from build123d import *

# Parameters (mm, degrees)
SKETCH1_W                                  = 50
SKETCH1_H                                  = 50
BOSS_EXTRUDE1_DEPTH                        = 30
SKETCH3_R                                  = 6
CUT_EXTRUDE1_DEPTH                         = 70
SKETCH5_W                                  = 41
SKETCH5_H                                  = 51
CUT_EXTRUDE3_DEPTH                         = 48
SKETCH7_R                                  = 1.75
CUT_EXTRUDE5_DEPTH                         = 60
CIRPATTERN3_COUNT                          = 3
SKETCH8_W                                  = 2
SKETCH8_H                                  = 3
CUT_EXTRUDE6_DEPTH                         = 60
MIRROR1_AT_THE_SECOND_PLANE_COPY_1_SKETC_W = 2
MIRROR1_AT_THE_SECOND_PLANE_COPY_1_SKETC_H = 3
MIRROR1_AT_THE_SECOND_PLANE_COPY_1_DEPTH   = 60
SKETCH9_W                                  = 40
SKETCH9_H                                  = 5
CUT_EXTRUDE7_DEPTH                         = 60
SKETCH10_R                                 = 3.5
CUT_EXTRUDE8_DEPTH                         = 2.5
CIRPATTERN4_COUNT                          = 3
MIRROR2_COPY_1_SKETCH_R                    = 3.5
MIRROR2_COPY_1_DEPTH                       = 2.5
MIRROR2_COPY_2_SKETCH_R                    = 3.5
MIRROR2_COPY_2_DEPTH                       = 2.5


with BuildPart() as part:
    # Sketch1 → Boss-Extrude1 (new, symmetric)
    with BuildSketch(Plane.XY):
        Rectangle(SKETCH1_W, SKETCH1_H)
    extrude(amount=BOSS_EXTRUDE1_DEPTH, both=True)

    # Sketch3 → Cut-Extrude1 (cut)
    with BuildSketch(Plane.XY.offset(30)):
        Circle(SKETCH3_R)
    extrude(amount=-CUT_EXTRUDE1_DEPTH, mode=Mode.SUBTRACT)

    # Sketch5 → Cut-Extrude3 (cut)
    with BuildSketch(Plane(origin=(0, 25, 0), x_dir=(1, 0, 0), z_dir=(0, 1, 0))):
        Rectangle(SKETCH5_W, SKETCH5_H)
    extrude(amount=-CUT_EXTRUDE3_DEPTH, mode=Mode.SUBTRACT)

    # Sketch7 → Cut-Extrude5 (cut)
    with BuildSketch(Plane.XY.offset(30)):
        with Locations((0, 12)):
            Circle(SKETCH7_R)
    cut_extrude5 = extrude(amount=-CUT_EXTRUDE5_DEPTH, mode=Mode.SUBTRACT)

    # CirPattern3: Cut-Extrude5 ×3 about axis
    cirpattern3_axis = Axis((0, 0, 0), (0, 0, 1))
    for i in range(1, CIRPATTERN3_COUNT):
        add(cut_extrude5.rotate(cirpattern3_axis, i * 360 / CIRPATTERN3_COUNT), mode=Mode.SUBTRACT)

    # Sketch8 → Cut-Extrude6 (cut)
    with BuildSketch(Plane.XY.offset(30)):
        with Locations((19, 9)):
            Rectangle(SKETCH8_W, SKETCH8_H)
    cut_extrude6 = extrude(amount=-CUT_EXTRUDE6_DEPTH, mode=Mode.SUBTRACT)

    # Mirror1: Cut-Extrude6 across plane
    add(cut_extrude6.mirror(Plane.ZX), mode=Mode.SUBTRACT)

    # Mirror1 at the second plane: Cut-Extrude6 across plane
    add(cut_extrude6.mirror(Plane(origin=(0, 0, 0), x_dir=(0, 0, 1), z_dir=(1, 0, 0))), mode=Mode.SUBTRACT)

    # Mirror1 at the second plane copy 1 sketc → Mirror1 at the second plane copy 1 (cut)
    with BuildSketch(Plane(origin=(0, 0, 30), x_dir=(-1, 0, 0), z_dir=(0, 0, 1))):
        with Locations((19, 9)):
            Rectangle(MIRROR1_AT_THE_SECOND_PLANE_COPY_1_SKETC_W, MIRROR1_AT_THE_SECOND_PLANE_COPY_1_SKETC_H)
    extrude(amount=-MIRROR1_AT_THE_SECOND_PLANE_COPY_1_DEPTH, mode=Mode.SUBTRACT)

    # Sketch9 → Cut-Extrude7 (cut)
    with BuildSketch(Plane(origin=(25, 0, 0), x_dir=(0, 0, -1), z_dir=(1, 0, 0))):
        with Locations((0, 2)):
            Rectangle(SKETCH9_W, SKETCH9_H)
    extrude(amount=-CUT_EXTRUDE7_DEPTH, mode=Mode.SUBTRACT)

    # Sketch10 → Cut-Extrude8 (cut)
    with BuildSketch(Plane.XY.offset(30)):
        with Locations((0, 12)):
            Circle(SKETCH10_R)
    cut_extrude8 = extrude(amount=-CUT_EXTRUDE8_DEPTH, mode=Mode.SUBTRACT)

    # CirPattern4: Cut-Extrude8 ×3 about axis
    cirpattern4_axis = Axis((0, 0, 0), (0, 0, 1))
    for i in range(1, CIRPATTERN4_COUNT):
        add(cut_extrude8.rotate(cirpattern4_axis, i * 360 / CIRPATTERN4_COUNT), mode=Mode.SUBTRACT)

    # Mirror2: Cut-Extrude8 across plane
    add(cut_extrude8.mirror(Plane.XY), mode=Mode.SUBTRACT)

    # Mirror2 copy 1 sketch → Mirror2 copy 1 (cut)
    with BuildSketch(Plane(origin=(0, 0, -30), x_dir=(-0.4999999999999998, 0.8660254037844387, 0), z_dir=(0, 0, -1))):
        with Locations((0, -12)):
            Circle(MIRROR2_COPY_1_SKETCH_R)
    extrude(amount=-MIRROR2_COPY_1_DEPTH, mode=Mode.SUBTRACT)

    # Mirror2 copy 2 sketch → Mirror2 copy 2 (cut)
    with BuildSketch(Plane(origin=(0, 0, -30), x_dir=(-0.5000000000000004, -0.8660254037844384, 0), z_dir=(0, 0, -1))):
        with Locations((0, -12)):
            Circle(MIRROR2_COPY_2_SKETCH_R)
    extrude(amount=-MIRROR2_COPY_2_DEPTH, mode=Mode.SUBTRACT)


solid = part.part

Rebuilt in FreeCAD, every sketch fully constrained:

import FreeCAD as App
import Part
import Sketcher

V = App.Vector
Q = App.Units.Quantity


def add_polygon(sketch, points):
    """Adds a closed chain of lines whose ends are joined by coincident constraints."""
    first, n = sketch.GeometryCount, len(points)
    for a, b in zip(points, points[1:] + points[:1]):
        sketch.addGeometry(Part.LineSegment(App.Vector(*a, 0), App.Vector(*b, 0)), False)
    for i in range(n):
        sketch.addConstraint(Sketcher.Constraint("Coincident", first + i, 2, first + (i + 1) % n, 1))

doc = App.newDocument("Part")
body = doc.addObject("PartDesign::Body", "Body")

# Sketch on XY plane
sketch1 = body.newObject("Sketcher::SketchObject", "Sketch")
sketch1.AttachmentSupport = (doc.getObject("XY_Plane"), [""])
sketch1.MapMode = "FlatFace"
add_polygon(sketch1, [(-25, 25), (-25, -25), (25, -25), (25, 25)])  # lines 0-3
sketch1.addConstraint(Sketcher.Constraint("Vertical", 0))
sketch1.addConstraint(Sketcher.Constraint("Horizontal", 1))
sketch1.addConstraint(Sketcher.Constraint("Vertical", 2))
sketch1.addConstraint(Sketcher.Constraint("Horizontal", 3))
sketch1.addConstraint(Sketcher.Constraint("Symmetric", 0, 2, 2, 2, -1, 1))
sketch1.addConstraint(Sketcher.Constraint("Equal", 3, 0))
sketch1.addConstraint(Sketcher.Constraint("DistanceX", 1, 1, 1, 2, Q("50 mm")))
pad1 = body.newObject("PartDesign::Pad", "Pad")
pad1.Profile = sketch1
pad1.Length = 60
pad1.Midplane = True

# Sketch on XY plane
sketch2 = body.newObject("Sketcher::SketchObject", "Sketch001")
sketch2.AttachmentSupport = (doc.getObject("XY_Plane"), [""])
sketch2.MapMode = "FlatFace"
sketch2.AttachmentOffset = App.Placement(V(0, 0, 30), App.Rotation())
sketch2.addGeometry(Part.Circle(V(0, 0, 0), V(0, 0, 1), 6), False)
sketch2.addConstraint(Sketcher.Constraint("Coincident", 0, 3, -1, 1))
sketch2.addConstraint(Sketcher.Constraint("Diameter", 0, Q("12 mm")))
pocket1 = body.newObject("PartDesign::Pocket", "Pocket")
pocket1.Profile = sketch2
pocket1.Length = 70

# Sketch on XZ plane
sketch3 = body.newObject("Sketcher::SketchObject", "Sketch002")
sketch3.AttachmentSupport = (doc.getObject("XZ_Plane"), [""])
sketch3.MapMode = "FlatFace"
sketch3.AttachmentOffset = App.Placement(V(0, 0, -25), App.Rotation())
add_polygon(sketch3, [(-20, -26), (-20, 26), (20, 26), (20, -26)])  # lines 0-3
sketch3.addConstraint(Sketcher.Constraint("Vertical", 0))
sketch3.addConstraint(Sketcher.Constraint("Horizontal", 1))
sketch3.addConstraint(Sketcher.Constraint("Vertical", 2))
sketch3.addConstraint(Sketcher.Constraint("Horizontal", 3))
sketch3.addConstraint(Sketcher.Constraint("Symmetric", 0, 2, 2, 2, -1, 1))
sketch3.addConstraint(Sketcher.Constraint("DistanceX", 1, 1, 1, 2, Q("41 mm")))
sketch3.addConstraint(Sketcher.Constraint("DistanceY", 0, 1, 0, 2, Q("51 mm")))
pocket2 = body.newObject("PartDesign::Pocket", "Pocket001")
pocket2.Profile = sketch3
pocket2.Length = 48
pocket2.Reversed = True

# Sketch on XY plane
sketch4 = body.newObject("Sketcher::SketchObject", "Sketch003")
sketch4.AttachmentSupport = (doc.getObject("XY_Plane"), [""])
sketch4.MapMode = "FlatFace"
sketch4.AttachmentOffset = App.Placement(V(0, 0, 30), App.Rotation())
sketch4.addGeometry(Part.Circle(V(0, 12, 0), V(0, 0, 1), 1.8), False)
sketch4.addConstraint(Sketcher.Constraint("PointOnObject", 0, 3, -2))
sketch4.addConstraint(Sketcher.Constraint("Diameter", 0, Q("3.5 mm")))
sketch4.addConstraint(Sketcher.Constraint("DistanceY", -1, 1, 0, 3, Q("12 mm")))
pocket3 = body.newObject("PartDesign::Pocket", "Pocket002")
pocket3.Profile = sketch4
pocket3.Length = 60
doc.recompute()

polarpattern = body.newObject("PartDesign::PolarPattern", "PolarPattern")
polarpattern.Originals = [pocket3]
polarpattern.Axis = (doc.getObject("Z_Axis"), [""])
polarpattern.Angle = 360
polarpattern.Occurrences = 3
body.Tip = polarpattern

# Sketch on XY plane
sketch5 = body.newObject("Sketcher::SketchObject", "Sketch004")
sketch5.AttachmentSupport = (doc.getObject("XY_Plane"), [""])
sketch5.MapMode = "FlatFace"
sketch5.AttachmentOffset = App.Placement(V(0, 0, 30), App.Rotation())
add_polygon(sketch5, [(18, 10.5), (18, 7.5), (20, 7.5), (20, 10.5)])  # lines 0-3
sketch5.addConstraint(Sketcher.Constraint("Vertical", 0))
sketch5.addConstraint(Sketcher.Constraint("Horizontal", 1))
sketch5.addConstraint(Sketcher.Constraint("Vertical", 2))
sketch5.addConstraint(Sketcher.Constraint("Horizontal", 3))
sketch5.addConstraint(Sketcher.Constraint("DistanceX", 1, 1, 1, 2, Q("2 mm")))
sketch5.addConstraint(Sketcher.Constraint("DistanceY", 0, 2, 0, 1, Q("3 mm")))
sketch5.addConstraint(Sketcher.Constraint("DistanceX", -1, 1, 0, 2, Q("18 mm")))
sketch5.addConstraint(Sketcher.Constraint("DistanceY", -1, 1, 0, 2, Q("7.5 mm")))
pocket4 = body.newObject("PartDesign::Pocket", "Pocket003")
pocket4.Profile = sketch5
pocket4.Length = 60
doc.recompute()

mirrored = body.newObject("PartDesign::Mirrored", "Mirrored")
mirrored.Originals = [pocket4]
mirrored.MirrorPlane = (doc.getObject("XZ_Plane"), [""])
body.Tip = mirrored
doc.recompute()

mirrored2 = body.newObject("PartDesign::Mirrored", "Mirrored001")
mirrored2.Originals = [pocket4]
mirrored2.MirrorPlane = (doc.getObject("YZ_Plane"), [""])
body.Tip = mirrored2

# Sketch on XY plane
sketch6 = body.newObject("Sketcher::SketchObject", "Sketch005")
sketch6.AttachmentSupport = (doc.getObject("XY_Plane"), [""])
sketch6.MapMode = "FlatFace"
sketch6.AttachmentOffset = App.Placement(V(0, 0, 30), App.Rotation())
add_polygon(sketch6, [(-18, -10.5), (-18, -7.5), (-20, -7.5), (-20, -10.5)])  # lines 0-3
sketch6.addConstraint(Sketcher.Constraint("Vertical", 0))
sketch6.addConstraint(Sketcher.Constraint("Horizontal", 1))
sketch6.addConstraint(Sketcher.Constraint("Vertical", 2))
sketch6.addConstraint(Sketcher.Constraint("Horizontal", 3))
sketch6.addConstraint(Sketcher.Constraint("DistanceX", 1, 2, 1, 1, Q("2 mm")))
sketch6.addConstraint(Sketcher.Constraint("DistanceY", 0, 1, 0, 2, Q("3 mm")))
sketch6.addConstraint(Sketcher.Constraint("DistanceX", 0, 2, -1, 1, Q("18 mm")))
sketch6.addConstraint(Sketcher.Constraint("DistanceY", 0, 2, -1, 1, Q("7.5 mm")))
pocket5 = body.newObject("PartDesign::Pocket", "Pocket004")
pocket5.Profile = sketch6
pocket5.Length = 60

# Sketch on YZ plane
sketch7 = body.newObject("Sketcher::SketchObject", "Sketch006")
sketch7.AttachmentSupport = (doc.getObject("YZ_Plane"), [""])
sketch7.MapMode = "FlatFace"
sketch7.AttachmentOffset = App.Placement(V(0, 0, 25), App.Rotation())
add_polygon(sketch7, [(4, 20), (0, 20), (0, -20), (4, -20)])  # lines 0-3
sketch7.addConstraint(Sketcher.Constraint("Horizontal", 0))
sketch7.addConstraint(Sketcher.Constraint("Vertical", 1))
sketch7.addConstraint(Sketcher.Constraint("Horizontal", 2))
sketch7.addConstraint(Sketcher.Constraint("Vertical", 3))
sketch7.addConstraint(Sketcher.Constraint("DistanceX", 0, 2, 0, 1, Q("5 mm")))
sketch7.addConstraint(Sketcher.Constraint("DistanceY", 1, 2, 1, 1, Q("40 mm")))
sketch7.addConstraint(Sketcher.Constraint("DistanceY", -1, 1, 0, 2, Q("20 mm")))
sketch7.addConstraint(Sketcher.Constraint("DistanceX", 0, 2, -1, 1, Q("0.5 mm")))
pocket6 = body.newObject("PartDesign::Pocket", "Pocket005")
pocket6.Profile = sketch7
pocket6.Length = 60

# Sketch on XY plane
sketch8 = body.newObject("Sketcher::SketchObject", "Sketch007")
sketch8.AttachmentSupport = (doc.getObject("XY_Plane"), [""])
sketch8.MapMode = "FlatFace"
sketch8.AttachmentOffset = App.Placement(V(0, 0, 30), App.Rotation())
sketch8.addGeometry(Part.Circle(V(0, 12, 0), V(0, 0, 1), 3.5), False)
sketch8.addConstraint(Sketcher.Constraint("PointOnObject", 0, 3, -2))
sketch8.addConstraint(Sketcher.Constraint("Diameter", 0, Q("7 mm")))
sketch8.addConstraint(Sketcher.Constraint("DistanceY", -1, 1, 0, 3, Q("12 mm")))
pocket7 = body.newObject("PartDesign::Pocket", "Pocket006")
pocket7.Profile = sketch8
pocket7.Length = 2.5
doc.recompute()

polarpattern2 = body.newObject("PartDesign::PolarPattern", "PolarPattern001")
polarpattern2.Originals = [pocket7]
polarpattern2.Axis = (doc.getObject("Z_Axis"), [""])
polarpattern2.Angle = 360
polarpattern2.Occurrences = 3
body.Tip = polarpattern2
doc.recompute()

mirrored3 = body.newObject("PartDesign::Mirrored", "Mirrored002")
mirrored3.Originals = [pocket7]
mirrored3.MirrorPlane = (doc.getObject("XY_Plane"), [""])
body.Tip = mirrored3

# Sketch on XY plane
sketch9 = body.newObject("Sketcher::SketchObject", "Sketch008")
sketch9.AttachmentSupport = (doc.getObject("XY_Plane"), [""])
sketch9.MapMode = "FlatFace"
sketch9.AttachmentOffset = App.Placement(V(0, 0, -30), App.Rotation())
sketch9.addGeometry(Part.Circle(V(-10.4, -6, 0), V(0, 0, 1), 3.5), False)
sketch9.addConstraint(Sketcher.Constraint("Diameter", 0, Q("7 mm")))
sketch9.addConstraint(Sketcher.Constraint("DistanceY", 0, 3, -1, 1, Q("6 mm")))
sketch9.addConstraint(Sketcher.Constraint("DistanceX", 0, 3, -1, 1, Q("10.392305 mm")))
pocket8 = body.newObject("PartDesign::Pocket", "Pocket007")
pocket8.Profile = sketch9
pocket8.Length = 2.5
pocket8.Reversed = True

# Sketch on XY plane
sketch10 = body.newObject("Sketcher::SketchObject", "Sketch009")
sketch10.AttachmentSupport = (doc.getObject("XY_Plane"), [""])
sketch10.MapMode = "FlatFace"
sketch10.AttachmentOffset = App.Placement(V(0, 0, -30), App.Rotation())
sketch10.addGeometry(Part.Circle(V(10.4, -6, 0), V(0, 0, 1), 3.5), False)
sketch10.addConstraint(Sketcher.Constraint("Diameter", 0, Q("7 mm")))
sketch10.addConstraint(Sketcher.Constraint("DistanceY", 0, 3, -1, 1, Q("6 mm")))
sketch10.addConstraint(Sketcher.Constraint("DistanceX", -1, 1, 0, 3, Q("10.392305 mm")))
pocket9 = body.newObject("PartDesign::Pocket", "Pocket008")
pocket9.Profile = sketch10
pocket9.Length = 2.5
pocket9.Reversed = True

doc.recompute()
